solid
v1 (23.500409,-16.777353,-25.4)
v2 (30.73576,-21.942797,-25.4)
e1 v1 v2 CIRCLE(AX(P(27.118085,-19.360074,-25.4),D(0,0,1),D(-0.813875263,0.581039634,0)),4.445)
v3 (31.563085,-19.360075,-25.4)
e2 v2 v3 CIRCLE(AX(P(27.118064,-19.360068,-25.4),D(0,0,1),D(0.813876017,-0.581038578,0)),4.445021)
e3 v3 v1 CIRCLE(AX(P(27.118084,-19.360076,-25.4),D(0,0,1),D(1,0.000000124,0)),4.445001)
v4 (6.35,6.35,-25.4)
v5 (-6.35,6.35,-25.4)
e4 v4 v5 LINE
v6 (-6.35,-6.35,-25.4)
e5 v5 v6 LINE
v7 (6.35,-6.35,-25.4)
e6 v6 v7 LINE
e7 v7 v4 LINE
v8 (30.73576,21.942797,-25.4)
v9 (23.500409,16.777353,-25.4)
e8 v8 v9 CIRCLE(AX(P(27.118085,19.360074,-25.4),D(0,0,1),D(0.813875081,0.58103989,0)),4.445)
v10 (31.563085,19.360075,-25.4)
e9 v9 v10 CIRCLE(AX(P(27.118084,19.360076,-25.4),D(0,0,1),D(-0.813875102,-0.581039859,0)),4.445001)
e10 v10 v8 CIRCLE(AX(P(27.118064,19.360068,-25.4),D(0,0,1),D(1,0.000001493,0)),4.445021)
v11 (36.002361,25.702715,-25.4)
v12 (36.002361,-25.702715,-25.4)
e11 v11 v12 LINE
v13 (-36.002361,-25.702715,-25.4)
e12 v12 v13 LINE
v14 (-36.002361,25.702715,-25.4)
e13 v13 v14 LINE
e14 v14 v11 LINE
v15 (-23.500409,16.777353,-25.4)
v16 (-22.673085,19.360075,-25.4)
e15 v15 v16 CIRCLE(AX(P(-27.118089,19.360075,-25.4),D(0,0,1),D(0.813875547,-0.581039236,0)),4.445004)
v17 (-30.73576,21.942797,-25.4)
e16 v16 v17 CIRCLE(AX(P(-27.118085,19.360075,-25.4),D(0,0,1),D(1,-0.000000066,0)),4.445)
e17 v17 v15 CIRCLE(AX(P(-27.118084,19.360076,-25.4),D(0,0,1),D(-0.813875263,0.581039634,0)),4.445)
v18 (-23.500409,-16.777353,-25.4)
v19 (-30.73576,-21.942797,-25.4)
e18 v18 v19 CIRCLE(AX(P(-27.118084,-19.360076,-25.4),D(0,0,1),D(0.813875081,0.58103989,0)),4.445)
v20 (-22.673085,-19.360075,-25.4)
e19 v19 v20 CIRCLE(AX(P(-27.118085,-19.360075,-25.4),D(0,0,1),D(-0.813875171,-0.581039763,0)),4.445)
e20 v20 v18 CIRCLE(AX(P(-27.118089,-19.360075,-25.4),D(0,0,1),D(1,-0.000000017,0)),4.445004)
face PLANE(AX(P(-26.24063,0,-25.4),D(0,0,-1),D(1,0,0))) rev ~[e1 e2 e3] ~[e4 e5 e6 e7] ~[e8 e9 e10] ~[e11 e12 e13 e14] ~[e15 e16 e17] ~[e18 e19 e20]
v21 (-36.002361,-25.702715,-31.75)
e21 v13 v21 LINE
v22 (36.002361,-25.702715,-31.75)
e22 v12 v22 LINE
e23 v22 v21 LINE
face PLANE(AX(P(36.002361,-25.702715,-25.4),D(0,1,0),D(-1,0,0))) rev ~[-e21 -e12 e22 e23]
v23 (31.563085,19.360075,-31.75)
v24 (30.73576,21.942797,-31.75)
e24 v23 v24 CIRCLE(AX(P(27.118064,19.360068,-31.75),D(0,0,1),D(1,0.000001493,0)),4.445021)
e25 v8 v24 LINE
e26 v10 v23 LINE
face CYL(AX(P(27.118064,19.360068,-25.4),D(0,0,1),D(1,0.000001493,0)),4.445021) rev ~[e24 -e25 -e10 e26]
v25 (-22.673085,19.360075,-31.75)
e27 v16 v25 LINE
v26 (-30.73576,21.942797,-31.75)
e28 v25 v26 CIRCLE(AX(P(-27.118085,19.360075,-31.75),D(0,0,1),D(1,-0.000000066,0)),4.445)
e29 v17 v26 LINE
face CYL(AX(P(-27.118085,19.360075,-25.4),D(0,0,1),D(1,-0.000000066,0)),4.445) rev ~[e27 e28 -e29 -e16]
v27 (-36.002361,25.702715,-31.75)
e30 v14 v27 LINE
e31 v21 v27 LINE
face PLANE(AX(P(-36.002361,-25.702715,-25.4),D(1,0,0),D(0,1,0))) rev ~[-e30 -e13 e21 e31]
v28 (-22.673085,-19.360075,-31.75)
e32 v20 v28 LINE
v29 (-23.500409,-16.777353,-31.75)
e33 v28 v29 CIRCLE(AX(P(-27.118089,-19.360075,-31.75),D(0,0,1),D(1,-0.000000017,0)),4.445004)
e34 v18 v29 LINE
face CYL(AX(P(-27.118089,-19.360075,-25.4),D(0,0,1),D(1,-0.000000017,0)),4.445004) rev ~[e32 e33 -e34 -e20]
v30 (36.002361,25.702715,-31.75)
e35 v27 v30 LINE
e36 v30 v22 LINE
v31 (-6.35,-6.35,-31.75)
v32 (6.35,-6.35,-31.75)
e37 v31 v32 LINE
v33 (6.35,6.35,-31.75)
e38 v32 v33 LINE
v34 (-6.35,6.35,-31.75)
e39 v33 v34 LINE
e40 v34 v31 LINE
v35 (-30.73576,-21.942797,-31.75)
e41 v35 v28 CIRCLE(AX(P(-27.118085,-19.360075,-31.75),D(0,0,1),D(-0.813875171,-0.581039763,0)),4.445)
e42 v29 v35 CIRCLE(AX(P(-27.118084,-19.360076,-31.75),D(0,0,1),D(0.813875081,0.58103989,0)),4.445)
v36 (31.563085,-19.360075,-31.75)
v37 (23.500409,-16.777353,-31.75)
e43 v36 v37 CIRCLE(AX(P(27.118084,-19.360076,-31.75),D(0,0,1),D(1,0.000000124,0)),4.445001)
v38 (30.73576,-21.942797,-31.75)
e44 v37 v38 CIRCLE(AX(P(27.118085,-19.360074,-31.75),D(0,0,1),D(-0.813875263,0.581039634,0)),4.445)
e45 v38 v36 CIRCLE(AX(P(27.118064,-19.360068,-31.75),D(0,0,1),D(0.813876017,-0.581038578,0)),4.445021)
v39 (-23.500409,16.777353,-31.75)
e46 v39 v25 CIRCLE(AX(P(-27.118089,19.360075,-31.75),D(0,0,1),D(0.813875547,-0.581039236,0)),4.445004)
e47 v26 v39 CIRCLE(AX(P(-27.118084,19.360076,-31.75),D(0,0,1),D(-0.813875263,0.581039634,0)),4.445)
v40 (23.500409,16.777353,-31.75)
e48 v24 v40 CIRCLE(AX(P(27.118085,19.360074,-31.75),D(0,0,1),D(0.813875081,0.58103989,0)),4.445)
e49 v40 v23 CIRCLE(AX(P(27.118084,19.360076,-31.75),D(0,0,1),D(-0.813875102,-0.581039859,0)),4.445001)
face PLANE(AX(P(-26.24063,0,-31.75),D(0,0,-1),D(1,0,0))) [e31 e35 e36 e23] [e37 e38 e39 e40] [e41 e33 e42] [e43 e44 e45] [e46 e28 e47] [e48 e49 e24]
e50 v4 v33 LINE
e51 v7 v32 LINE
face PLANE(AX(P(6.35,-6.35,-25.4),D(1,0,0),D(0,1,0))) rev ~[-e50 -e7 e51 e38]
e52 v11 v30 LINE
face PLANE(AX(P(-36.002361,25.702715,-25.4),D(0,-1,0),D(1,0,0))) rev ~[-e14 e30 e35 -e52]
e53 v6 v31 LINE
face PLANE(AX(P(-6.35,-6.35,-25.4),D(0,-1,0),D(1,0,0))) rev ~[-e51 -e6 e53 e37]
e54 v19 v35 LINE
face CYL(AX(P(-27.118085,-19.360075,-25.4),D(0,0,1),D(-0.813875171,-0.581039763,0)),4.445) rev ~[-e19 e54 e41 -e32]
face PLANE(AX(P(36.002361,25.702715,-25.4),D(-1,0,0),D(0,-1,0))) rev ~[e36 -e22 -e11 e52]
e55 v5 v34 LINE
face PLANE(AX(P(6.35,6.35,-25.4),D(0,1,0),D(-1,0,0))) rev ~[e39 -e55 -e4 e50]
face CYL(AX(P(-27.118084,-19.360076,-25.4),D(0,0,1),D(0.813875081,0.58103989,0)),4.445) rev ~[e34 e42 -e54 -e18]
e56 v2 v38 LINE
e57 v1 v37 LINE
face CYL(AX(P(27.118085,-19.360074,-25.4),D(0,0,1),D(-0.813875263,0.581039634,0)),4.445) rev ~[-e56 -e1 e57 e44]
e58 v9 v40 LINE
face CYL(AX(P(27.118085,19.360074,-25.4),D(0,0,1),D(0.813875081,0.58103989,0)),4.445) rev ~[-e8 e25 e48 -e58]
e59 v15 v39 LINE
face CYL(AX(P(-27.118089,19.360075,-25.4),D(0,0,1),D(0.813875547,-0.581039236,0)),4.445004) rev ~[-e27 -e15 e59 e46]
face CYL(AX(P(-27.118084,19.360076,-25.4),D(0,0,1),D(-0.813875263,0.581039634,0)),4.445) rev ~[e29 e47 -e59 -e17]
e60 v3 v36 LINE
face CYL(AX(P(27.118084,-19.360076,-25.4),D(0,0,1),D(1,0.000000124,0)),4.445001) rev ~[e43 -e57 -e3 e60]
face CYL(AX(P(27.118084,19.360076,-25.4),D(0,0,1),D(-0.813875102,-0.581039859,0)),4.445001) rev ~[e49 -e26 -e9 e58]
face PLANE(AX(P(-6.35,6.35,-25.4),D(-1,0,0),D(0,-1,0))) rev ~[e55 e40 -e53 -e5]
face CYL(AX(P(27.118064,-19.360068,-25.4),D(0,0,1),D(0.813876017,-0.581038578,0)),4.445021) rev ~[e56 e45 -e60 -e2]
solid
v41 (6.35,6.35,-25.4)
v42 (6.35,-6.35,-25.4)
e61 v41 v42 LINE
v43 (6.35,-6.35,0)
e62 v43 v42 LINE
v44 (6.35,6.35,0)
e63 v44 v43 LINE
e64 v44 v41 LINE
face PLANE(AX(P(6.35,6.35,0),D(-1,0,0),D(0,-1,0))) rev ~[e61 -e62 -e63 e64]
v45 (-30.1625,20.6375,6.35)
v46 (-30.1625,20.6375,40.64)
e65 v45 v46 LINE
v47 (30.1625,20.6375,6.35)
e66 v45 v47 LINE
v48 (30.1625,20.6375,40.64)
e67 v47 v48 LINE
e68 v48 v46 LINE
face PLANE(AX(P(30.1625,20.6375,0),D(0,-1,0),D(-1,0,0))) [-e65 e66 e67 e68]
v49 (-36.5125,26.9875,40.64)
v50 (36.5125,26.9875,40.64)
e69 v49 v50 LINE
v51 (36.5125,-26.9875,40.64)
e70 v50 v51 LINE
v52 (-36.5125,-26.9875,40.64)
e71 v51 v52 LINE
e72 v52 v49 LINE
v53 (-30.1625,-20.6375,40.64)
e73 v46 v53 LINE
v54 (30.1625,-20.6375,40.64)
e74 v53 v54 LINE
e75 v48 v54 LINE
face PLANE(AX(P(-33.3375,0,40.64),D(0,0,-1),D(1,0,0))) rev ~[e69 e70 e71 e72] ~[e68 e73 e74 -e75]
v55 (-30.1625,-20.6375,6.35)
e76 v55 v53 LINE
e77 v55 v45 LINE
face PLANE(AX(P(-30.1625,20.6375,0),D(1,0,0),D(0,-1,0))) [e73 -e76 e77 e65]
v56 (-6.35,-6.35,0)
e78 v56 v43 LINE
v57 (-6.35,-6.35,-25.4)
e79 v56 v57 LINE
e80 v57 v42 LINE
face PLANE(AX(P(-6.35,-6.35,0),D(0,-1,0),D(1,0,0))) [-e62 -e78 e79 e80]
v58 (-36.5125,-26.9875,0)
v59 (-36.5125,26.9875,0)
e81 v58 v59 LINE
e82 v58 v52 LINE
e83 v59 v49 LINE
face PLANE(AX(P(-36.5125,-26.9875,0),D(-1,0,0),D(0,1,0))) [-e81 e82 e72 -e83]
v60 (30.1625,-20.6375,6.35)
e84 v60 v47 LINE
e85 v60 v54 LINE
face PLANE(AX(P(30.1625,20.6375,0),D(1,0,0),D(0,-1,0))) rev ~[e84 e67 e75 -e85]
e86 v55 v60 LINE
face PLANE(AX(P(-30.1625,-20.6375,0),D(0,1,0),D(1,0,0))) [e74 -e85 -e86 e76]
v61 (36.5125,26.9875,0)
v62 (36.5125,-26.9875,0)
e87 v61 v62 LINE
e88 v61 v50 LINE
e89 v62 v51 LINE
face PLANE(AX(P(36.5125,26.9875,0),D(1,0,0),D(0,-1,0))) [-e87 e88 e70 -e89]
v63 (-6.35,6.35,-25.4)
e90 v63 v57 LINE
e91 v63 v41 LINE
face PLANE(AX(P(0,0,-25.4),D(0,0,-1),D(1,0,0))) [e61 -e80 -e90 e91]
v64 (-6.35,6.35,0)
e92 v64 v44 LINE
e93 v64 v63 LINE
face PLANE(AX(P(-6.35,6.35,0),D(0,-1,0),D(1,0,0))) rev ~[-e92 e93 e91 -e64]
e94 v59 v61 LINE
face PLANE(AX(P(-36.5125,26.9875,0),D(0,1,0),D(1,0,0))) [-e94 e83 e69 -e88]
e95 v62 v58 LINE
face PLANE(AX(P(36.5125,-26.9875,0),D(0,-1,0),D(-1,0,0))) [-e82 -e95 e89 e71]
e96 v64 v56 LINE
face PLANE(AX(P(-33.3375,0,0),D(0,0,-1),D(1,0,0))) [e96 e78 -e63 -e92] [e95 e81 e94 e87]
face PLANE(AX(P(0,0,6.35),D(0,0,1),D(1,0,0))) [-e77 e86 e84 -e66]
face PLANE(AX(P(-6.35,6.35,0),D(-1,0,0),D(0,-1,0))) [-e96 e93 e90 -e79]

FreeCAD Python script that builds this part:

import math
import FreeCAD as App
import Part
import Sketcher
from FreeCAD import Vector
Q = App.Units.Quantity

doc = App.newDocument("Part")
body = doc.addObject("PartDesign::Body", "Body")

# Sketch on XY plane
sketch1 = doc.addObject("Sketcher::SketchObject", "Sketch")
body.addObject(sketch1)
sketch1.AttachmentSupport = (doc.XY_Plane, [""])
sketch1.MapMode = "FlatFace"
sketch1.addGeometry([
    Part.LineSegment(Vector(-30.1625, 20.6375, 0), Vector(-30.1625, -20.6375, 0)),
    Part.LineSegment(Vector(-30.1625, -20.6375, 0), Vector(30.1625, -20.6375, 0)),
    Part.LineSegment(Vector(30.1625, -20.6375, 0), Vector(30.1625, 20.6375, 0)),
    Part.LineSegment(Vector(30.1625, 20.6375, 0), Vector(-30.1625, 20.6375, 0)),
], False)
sketch1.addConstraint([
    Sketcher.Constraint("Coincident", 0, 2, 1, 1),
    Sketcher.Constraint("Coincident", 1, 2, 2, 1),
    Sketcher.Constraint("Coincident", 2, 2, 3, 1),
    Sketcher.Constraint("Coincident", 3, 2, 0, 1),
    Sketcher.Constraint("Vertical", 0),
    Sketcher.Constraint("Horizontal", 1),
    Sketcher.Constraint("Vertical", 2),
    Sketcher.Constraint("Horizontal", 3),
    Sketcher.Constraint("Symmetric", 0, 2, 2, 2, -1, 1),
    Sketcher.Constraint("DistanceX", 1, 1, 1, 2, Q("2.375 in")),
    Sketcher.Constraint("DistanceY", 0, 2, 0, 1, Q("1.625 in")),
])
pad1 = doc.addObject("PartDesign::Pad", "Pad")
body.addObject(pad1)
pad1.Profile = sketch1
pad1.Length = Q("0.25 in")

# Sketch on XY plane
sketch2 = doc.addObject("Sketcher::SketchObject", "Sketch001")
body.addObject(sketch2)
sketch2.AttachmentSupport = (doc.XY_Plane, [""])
sketch2.MapMode = "FlatFace"
sketch2.addGeometry([
    Part.LineSegment(Vector(-6.35, -6.35, 0), Vector(-6.35, 6.35, 0)),
    Part.LineSegment(Vector(-6.35, 6.35, 0), Vector(6.35, 6.35, 0)),
    Part.LineSegment(Vector(6.35, 6.35, 0), Vector(6.35, -6.35, 0)),
    Part.LineSegment(Vector(6.35, -6.35, 0), Vector(-6.35, -6.35, 0)),
], False)
sketch2.addConstraint([
    Sketcher.Constraint("Coincident", 0, 2, 1, 1),
    Sketcher.Constraint("Coincident", 1, 2, 2, 1),
    Sketcher.Constraint("Coincident", 2, 2, 3, 1),
    Sketcher.Constraint("Coincident", 3, 2, 0, 1),
    Sketcher.Constraint("Vertical", 0),
    Sketcher.Constraint("Horizontal", 1),
    Sketcher.Constraint("Vertical", 2),
    Sketcher.Constraint("Horizontal", 3),
    Sketcher.Constraint("Symmetric", 0, 2, 2, 2, -1, 1),
    Sketcher.Constraint("Equal", 3, 0),
    Sketcher.Constraint("DistanceX", 1, 1, 1, 2, Q("0.5 in")),
])
pad2 = doc.addObject("PartDesign::Pad", "Pad001")
body.addObject(pad2)
pad2.Profile = sketch2
pad2.Length = Q("1 in")
pad2.Reversed = True

# Sketch on XY plane
sketch3 = doc.addObject("Sketcher::SketchObject", "Sketch002")
body.addObject(sketch3)
sketch3.AttachmentSupport = (doc.XY_Plane, [""])
sketch3.MapMode = "FlatFace"
sketch3.addGeometry([
    Part.LineSegment(Vector(36.5125, -26.9875, 0), Vector(-36.5125, -26.9875, 0)),  # 0
    Part.LineSegment(Vector(-36.5125, -26.9875, 0), Vector(-36.5125, 26.9875, 0)),  # 1
    Part.LineSegment(Vector(-36.5125, 26.9875, 0), Vector(36.5125, 26.9875, 0)),  # 2
    Part.LineSegment(Vector(36.5125, 26.9875, 0), Vector(36.5125, -26.9875, 0)),  # 3
    Part.LineSegment(Vector(-30.1625, 20.6375, 0), Vector(-30.1625, -20.6375, 0)),  # 4
    Part.LineSegment(Vector(-30.1625, -20.6375, 0), Vector(30.1625, -20.6375, 0)),  # 5
    Part.LineSegment(Vector(30.1625, -20.6375, 0), Vector(30.1625, 20.6375, 0)),  # 6
    Part.LineSegment(Vector(30.1625, 20.6375, 0), Vector(-30.1625, 20.6375, 0)),  # 7
], False)
sketch3.addConstraint([
    Sketcher.Constraint("Coincident", 0, 2, 1, 1),
    Sketcher.Constraint("Coincident", 1, 2, 2, 1),
    Sketcher.Constraint("Coincident", 2, 2, 3, 1),
    Sketcher.Constraint("Coincident", 3, 2, 0, 1),
    Sketcher.Constraint("Coincident", 4, 2, 5, 1),
    Sketcher.Constraint("Coincident", 5, 2, 6, 1),
    Sketcher.Constraint("Coincident", 6, 2, 7, 1),
    Sketcher.Constraint("Coincident", 7, 2, 4, 1),
    Sketcher.Constraint("Horizontal", 0),
    Sketcher.Constraint("Vertical", 1),
    Sketcher.Constraint("Horizontal", 2),
    Sketcher.Constraint("Vertical", 3),
    Sketcher.Constraint("Vertical", 4),
    Sketcher.Constraint("Horizontal", 5),
    Sketcher.Constraint("Vertical", 6),
    Sketcher.Constraint("Horizontal", 7),
    Sketcher.Constraint("Symmetric", 0, 2, 2, 2, -1, 1),
    Sketcher.Constraint("Symmetric", 4, 2, 6, 2, -1, 1),
    Sketcher.Constraint("DistanceX", 0, 2, 0, 1, Q("2.875 in")),
    Sketcher.Constraint("DistanceX", 5, 1, 5, 2, Q("2.375 in")),
    Sketcher.Constraint("DistanceY", 1, 1, 1, 2, Q("2.125 in")),
    Sketcher.Constraint("DistanceY", 4, 2, 4, 1, Q("1.625 in")),
])
pad3 = doc.addObject("PartDesign::Pad", "Pad002")
body.addObject(pad3)
pad3.Profile = sketch3
pad3.Length = Q("1.6 in")
body2 = doc.addObject("PartDesign::Body", "Body001")

# Sketch on XY plane
sketch4 = doc.addObject("Sketcher::SketchObject", "Sketch003")
body2.addObject(sketch4)
sketch4.AttachmentSupport = (doc.getObject("XY_Plane001"), [""])
sketch4.MapMode = "FlatFace"
sketch4.AttachmentOffset = App.Placement(Vector(0, 0, -1 * 25.4), App.Rotation())
sketch4.addGeometry([
    Part.LineSegment(Vector(-36.002361, -25.702715, 0), Vector(-36.002361, 25.702715, 0)),  # 0
    Part.LineSegment(Vector(-36.002361, 25.702715, 0), Vector(36.002361, 25.702715, 0)),  # 1
    Part.LineSegment(Vector(36.002361, 25.702715, 0), Vector(36.002361, -25.702715, 0)),  # 2
    Part.LineSegment(Vector(36.002361, -25.702715, 0), Vector(-36.002361, -25.702715, 0)),  # 3
    Part.ArcOfCircle(Part.Circle(Vector(-27.118084, 19.360076, 0), Vector(0, 0, 1), 4.445), math.radians(144.476302), math.radians(324.476284)),  # 4
    Part.ArcOfCircle(Part.Circle(Vector(-27.118089, 19.360075, 0), Vector(0, 0, 1), 4.445004), math.radians(-35.52367), math.radians(0.000001)),  # 5
    Part.ArcOfCircle(Part.Circle(Vector(-27.118085, 19.360075, 0), Vector(0, 0, 1), 4.445), math.radians(-0.000004), math.radians(144.476293)),  # 6
    Part.LineSegment(Vector(-6.35, -6.35, 0), Vector(6.35, -6.35, 0)),  # 7
    Part.LineSegment(Vector(6.35, -6.35, 0), Vector(6.35, 6.35, 0)),  # 8
    Part.LineSegment(Vector(6.35, 6.35, 0), Vector(-6.35, 6.35, 0)),  # 9
    Part.LineSegment(Vector(-6.35, 6.35, 0), Vector(-6.35, -6.35, 0)),  # 10
    Part.ArcOfCircle(Part.Circle(Vector(27.118084, 19.360076, 0), Vector(0, 0, 1), 4.445001), math.radians(-144.476286), math.radians(-0.000007)),  # 11
    Part.ArcOfCircle(Part.Circle(Vector(27.118064, 19.360068, 0), Vector(0, 0, 1), 4.445021), math.radians(0.000086), math.radians(35.523624)),  # 12
    Part.ArcOfCircle(Part.Circle(Vector(27.118085, 19.360074, 0), Vector(0, 0, 1), 4.445), math.radians(35.523716), math.radians(215.523698)),  # 13
    Part.ArcOfCircle(Part.Circle(Vector(27.118085, -19.360074, 0), Vector(0, 0, 1), 4.445), math.radians(144.476302), math.radians(324.476284)),  # 14
    Part.ArcOfCircle(Part.Circle(Vector(27.118064, -19.360068, 0), Vector(0, 0, 1), 4.445021), math.radians(-35.523624), math.radians(-0.000086)),  # 15
    Part.ArcOfCircle(Part.Circle(Vector(27.118084, -19.360076, 0), Vector(0, 0, 1), 4.445001), math.radians(0.000007), math.radians(144.476286)),  # 16
    Part.ArcOfCircle(Part.Circle(Vector(-27.118084, -19.360076, 0), Vector(0, 0, 1), 4.445), math.radians(35.523716), math.radians(215.523698)),  # 17
    Part.ArcOfCircle(Part.Circle(Vector(-27.118085, -19.360075, 0), Vector(0, 0, 1), 4.445), math.radians(-144.476293), math.radians(0.000004)),  # 18
    Part.ArcOfCircle(Part.Circle(Vector(-27.118089, -19.360075, 0), Vector(0, 0, 1), 4.445004), math.radians(-0.000001), math.radians(35.52367)),  # 19
], False)
sketch4.addConstraint([
    Sketcher.Constraint("Coincident", 0, 2, 1, 1),
    Sketcher.Constraint("Coincident", 1, 2, 2, 1),
    Sketcher.Constraint("Coincident", 2, 2, 3, 1),
    Sketcher.Constraint("Coincident", 3, 2, 0, 1),
    Sketcher.Constraint("Coincident", 4, 2, 5, 1),
    Sketcher.Constraint("Coincident", 5, 2, 6, 1),
    Sketcher.Constraint("Coincident", 6, 2, 4, 1),
    Sketcher.Constraint("Coincident", 7, 2, 8, 1),
    Sketcher.Constraint("Coincident", 8, 2, 9, 1),
    Sketcher.Constraint("Coincident", 9, 2, 10, 1),
    Sketcher.Constraint("Coincident", 10, 2, 7, 1),
    Sketcher.Constraint("Coincident", 11, 2, 12, 1),
    Sketcher.Constraint("Coincident", 12, 2, 13, 1),
    Sketcher.Constraint("Coincident", 13, 2, 11, 1),
    Sketcher.Constraint("Coincident", 14, 2, 15, 1),
    Sketcher.Constraint("Coincident", 15, 2, 16, 1),
    Sketcher.Constraint("Coincident", 16, 2, 14, 1),
    Sketcher.Constraint("Coincident", 17, 2, 18, 1),
    Sketcher.Constraint("Coincident", 18, 2, 19, 1),
    Sketcher.Constraint("Coincident", 19, 2, 17, 1),
    Sketcher.Constraint("Vertical", 0),
    Sketcher.Constraint("Horizontal", 1),
    Sketcher.Constraint("Vertical", 2),
    Sketcher.Constraint("Horizontal", 3),
    Sketcher.Constraint("Horizontal", 7),
    Sketcher.Constraint("Vertical", 8),
    Sketcher.Constraint("Horizontal", 9),
    Sketcher.Constraint("Vertical", 10),
    Sketcher.Constraint("Coincident", 5, 3, 4, 3),
    Sketcher.Constraint("Coincident", 13, 3, 11, 3),
    Sketcher.Constraint("Coincident", 16, 3, 14, 3),
    Sketcher.Constraint("Coincident", 18, 3, 17, 3),
    Sketcher.Constraint("DistanceX", 7, 1, 7, 2, Q("0.5 in")),
    Sketcher.Constraint("DistanceY", 8, 1, 8, 2, Q("0.5 in")),
    Sketcher.Constraint("Radius", 4, Q("0.175 in")),
    Sketcher.Constraint("Radius", 6, Q("0.175 in")),
    Sketcher.Constraint("Radius", 11, Q("0.175 in")),
    Sketcher.Constraint("Radius", 14, Q("0.175 in")),
    Sketcher.Constraint("Radius", 17, Q("0.175 in")),
    Sketcher.Constraint("Radius", 19, Q("0.1750002 in")),
    Sketcher.Constraint("DistanceX", -1, 1, 7, 2, Q("0.25 in")),
    Sketcher.Constraint("DistanceY", 7, 2, -1, 1, Q("0.25 in")),
    Sketcher.Constraint("Radius", 12, 4.445021),
    Sketcher.Constraint("Radius", 15, 4.445021),
    Sketcher.Constraint("DistanceX", 1, 1, 1, 2, 72.004722),
    Sketcher.Constraint("DistanceY", 0, 1, 0, 2, 51.40543),
    Sketcher.Constraint("DistanceX", 0, 2, 6, 2, 5.266601),
    Sketcher.Constraint("DistanceX", 12, 2, 1, 2, 5.266601),
    Sketcher.Constraint("DistanceX", 14, 2, 2, 2, 5.266601),
    Sketcher.Constraint("DistanceX", 3, 2, 17, 2, 5.266601),
    Sketcher.Constraint("DistanceX", 5, 3, -1, 1, 27.118089),
    Sketcher.Constraint("DistanceY", -1, 1, 12, 3, 19.360068),
    Sketcher.Constraint("DistanceY", 15, 3, -1, 1, 19.360068),
    Sketcher.Constraint("DistanceX", 19, 3, -1, 1, 27.118089),
    Sketcher.Constraint("DistanceX", 0, 2, -1, 1, 36.002361),
    Sketcher.Constraint("DistanceX", 4, 2, -1, 1, 23.500409),
    Sketcher.Constraint("DistanceX", -1, 1, 13, 2, 23.500409),
    Sketcher.Constraint("DistanceX", -1, 1, 16, 2, 23.500409),
    Sketcher.Constraint("DistanceX", 19, 2, -1, 1, 23.500409),
    Sketcher.Constraint("DistanceX", 4, 3, 11, 3, 54.236168),
    Sketcher.Constraint("DistanceX", 4, 3, 14, 3, 54.236169),
    Sketcher.Constraint("DistanceY", 14, 3, 4, 3, 38.72015),
    Sketcher.Constraint("DistanceY", 17, 3, 5, 3, 38.72015),
    Sketcher.Constraint("DistanceY", 5, 3, 0, 2, 6.34264),
    Sketcher.Constraint("DistanceY", 4, 2, 5, 2, 2.582722),
    Sketcher.Constraint("DistanceY", 11, 2, 1, 2, 6.34264),
    Sketcher.Constraint("DistanceY", 14, 2, 15, 2, 2.582722),
    Sketcher.Constraint("DistanceY", 3, 2, 18, 2, 6.34264),
])
pad4 = doc.addObject("PartDesign::Pad", "Pad003")
body2.addObject(pad4)
pad4.Profile = sketch4
pad4.Length = Q("0.25 in")
pad4.Reversed = True

doc.recompute()
